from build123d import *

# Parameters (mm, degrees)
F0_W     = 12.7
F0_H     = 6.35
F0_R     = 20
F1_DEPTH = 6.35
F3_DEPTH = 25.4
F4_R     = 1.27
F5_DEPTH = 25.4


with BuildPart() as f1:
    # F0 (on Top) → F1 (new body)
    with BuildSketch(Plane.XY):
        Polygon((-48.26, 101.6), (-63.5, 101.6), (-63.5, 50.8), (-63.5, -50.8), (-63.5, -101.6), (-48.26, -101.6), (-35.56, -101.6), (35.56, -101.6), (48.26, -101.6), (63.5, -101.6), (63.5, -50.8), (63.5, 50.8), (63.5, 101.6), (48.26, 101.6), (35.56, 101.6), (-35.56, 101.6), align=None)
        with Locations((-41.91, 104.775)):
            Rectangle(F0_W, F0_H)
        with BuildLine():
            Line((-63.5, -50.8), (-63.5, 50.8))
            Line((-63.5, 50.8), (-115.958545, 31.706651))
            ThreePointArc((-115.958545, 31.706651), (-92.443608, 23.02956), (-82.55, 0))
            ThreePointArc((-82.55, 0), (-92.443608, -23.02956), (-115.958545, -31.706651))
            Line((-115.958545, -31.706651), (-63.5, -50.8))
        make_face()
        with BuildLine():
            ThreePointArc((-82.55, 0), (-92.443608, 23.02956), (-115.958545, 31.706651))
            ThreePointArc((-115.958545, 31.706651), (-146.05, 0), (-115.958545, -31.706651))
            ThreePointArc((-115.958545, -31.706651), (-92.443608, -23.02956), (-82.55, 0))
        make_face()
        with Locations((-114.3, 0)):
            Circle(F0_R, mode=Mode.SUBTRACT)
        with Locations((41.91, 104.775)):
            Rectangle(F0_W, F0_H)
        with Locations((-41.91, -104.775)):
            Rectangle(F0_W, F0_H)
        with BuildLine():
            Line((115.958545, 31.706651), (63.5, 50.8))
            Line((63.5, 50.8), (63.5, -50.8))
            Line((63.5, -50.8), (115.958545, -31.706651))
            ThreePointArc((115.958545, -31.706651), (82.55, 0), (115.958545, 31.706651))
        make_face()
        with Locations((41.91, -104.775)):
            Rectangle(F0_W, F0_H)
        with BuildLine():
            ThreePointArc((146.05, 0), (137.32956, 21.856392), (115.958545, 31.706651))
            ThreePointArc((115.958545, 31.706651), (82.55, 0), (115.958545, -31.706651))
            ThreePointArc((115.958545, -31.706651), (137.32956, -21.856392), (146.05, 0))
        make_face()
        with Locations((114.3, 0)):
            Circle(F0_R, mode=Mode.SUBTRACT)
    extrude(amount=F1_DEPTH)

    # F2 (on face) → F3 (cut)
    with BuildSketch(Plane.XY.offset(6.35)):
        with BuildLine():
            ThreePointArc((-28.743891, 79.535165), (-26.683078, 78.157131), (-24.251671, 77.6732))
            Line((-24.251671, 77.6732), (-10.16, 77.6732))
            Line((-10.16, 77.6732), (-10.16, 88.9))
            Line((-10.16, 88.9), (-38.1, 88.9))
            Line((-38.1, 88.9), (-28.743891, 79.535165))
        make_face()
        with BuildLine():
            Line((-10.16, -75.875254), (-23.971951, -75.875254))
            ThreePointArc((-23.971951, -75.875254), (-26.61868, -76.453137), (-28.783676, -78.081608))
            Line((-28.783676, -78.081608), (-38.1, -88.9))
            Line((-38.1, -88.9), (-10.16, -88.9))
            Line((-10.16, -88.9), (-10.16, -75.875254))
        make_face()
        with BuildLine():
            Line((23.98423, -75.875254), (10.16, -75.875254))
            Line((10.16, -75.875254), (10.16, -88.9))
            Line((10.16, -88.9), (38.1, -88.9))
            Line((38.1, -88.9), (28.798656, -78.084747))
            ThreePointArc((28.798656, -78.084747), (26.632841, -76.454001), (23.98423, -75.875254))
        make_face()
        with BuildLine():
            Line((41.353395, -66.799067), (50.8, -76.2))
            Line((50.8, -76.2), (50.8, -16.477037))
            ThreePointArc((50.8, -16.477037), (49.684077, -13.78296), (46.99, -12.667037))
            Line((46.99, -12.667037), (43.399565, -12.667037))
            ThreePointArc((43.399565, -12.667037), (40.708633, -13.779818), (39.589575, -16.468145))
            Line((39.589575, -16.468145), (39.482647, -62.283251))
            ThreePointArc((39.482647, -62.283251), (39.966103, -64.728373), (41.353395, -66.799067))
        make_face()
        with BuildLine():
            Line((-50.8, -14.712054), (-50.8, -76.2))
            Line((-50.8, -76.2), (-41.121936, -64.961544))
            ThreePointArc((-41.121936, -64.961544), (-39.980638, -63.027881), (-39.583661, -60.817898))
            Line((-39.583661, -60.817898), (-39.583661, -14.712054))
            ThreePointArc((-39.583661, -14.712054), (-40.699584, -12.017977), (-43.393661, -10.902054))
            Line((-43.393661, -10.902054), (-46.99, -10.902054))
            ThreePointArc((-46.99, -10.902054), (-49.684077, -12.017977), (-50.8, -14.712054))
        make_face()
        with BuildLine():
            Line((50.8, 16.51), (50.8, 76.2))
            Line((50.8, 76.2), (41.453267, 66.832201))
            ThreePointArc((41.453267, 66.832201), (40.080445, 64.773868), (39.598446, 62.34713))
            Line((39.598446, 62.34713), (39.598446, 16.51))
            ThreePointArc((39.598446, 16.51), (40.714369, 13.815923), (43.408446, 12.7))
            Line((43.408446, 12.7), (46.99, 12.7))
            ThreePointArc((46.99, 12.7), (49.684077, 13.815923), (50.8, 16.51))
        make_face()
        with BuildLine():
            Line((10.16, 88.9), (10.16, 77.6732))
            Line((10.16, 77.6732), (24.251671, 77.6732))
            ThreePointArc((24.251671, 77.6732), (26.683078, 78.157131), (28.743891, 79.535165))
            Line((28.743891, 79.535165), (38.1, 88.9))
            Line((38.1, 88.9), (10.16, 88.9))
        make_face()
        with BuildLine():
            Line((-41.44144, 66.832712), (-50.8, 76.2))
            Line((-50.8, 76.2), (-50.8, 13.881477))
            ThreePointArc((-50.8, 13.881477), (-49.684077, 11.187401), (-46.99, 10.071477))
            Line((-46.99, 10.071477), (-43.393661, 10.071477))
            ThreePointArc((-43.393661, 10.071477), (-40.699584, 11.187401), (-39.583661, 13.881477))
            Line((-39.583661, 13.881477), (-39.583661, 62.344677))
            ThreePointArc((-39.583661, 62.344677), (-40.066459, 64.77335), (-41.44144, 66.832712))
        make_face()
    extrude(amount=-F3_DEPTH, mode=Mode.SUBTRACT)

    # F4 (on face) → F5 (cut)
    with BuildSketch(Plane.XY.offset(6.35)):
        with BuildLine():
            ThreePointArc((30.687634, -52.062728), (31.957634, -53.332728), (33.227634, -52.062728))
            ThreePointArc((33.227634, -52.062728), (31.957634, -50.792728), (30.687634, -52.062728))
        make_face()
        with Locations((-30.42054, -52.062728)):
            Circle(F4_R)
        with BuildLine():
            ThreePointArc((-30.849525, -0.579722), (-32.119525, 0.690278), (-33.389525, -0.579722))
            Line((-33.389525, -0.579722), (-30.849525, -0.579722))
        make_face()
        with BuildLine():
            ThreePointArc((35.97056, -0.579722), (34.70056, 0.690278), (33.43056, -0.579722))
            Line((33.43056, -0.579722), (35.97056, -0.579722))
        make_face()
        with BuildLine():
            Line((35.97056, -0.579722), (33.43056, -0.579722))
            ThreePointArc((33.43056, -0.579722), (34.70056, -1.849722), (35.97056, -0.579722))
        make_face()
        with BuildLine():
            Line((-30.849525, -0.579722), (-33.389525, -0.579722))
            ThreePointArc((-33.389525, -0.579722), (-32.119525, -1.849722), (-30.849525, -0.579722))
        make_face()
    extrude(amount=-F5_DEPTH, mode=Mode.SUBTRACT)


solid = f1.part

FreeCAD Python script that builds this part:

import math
import FreeCAD as App
import Part
import Sketcher
Q = App.Units.Quantity

doc = App.newDocument("Part")
body = doc.addObject("PartDesign::Body", "Body")

# Sketch on XY plane
sketch1 = body.newObject("Sketcher::SketchObject", "Sketch")
sketch1.AttachmentSupport = (doc.getObject("XY_Plane"), [""])
sketch1.MapMode = "FlatFace"
sketch1.addGeometry([
    Part.LineSegment(App.Vector(-64, 102, 0), App.Vector(-64, 51, 0)),  # 0
    Part.LineSegment(App.Vector(-64, 51, 0), App.Vector(-116, 32, 0)),  # 1
    Part.ArcOfCircle(Part.Circle(App.Vector(-114, 0, 0), App.Vector(0, 0, 1), 32), math.radians(93), math.radians(267)),  # 2
    Part.LineSegment(App.Vector(-116, -32, 0), App.Vector(-64, -51, 0)),  # 3
    Part.LineSegment(App.Vector(-64, -51, 0), App.Vector(-64, -102, 0)),  # 4
    Part.LineSegment(App.Vector(-64, -102, 0), App.Vector(-48, -102, 0)),  # 5
    Part.LineSegment(App.Vector(-48, -102, 0), App.Vector(-48, -108, 0)),  # 6
    Part.LineSegment(App.Vector(-48, -108, 0), App.Vector(-36, -108, 0)),  # 7
    Part.LineSegment(App.Vector(-36, -108, 0), App.Vector(-36, -102, 0)),  # 8
    Part.LineSegment(App.Vector(-36, -102, 0), App.Vector(36, -102, 0)),  # 9
    Part.LineSegment(App.Vector(36, -102, 0), App.Vector(36, -108, 0)),  # 10
    Part.LineSegment(App.Vector(36, -108, 0), App.Vector(48, -108, 0)),  # 11
    Part.LineSegment(App.Vector(48, -108, 0), App.Vector(48, -102, 0)),  # 12
    Part.LineSegment(App.Vector(48, -102, 0), App.Vector(64, -102, 0)),  # 13
    Part.LineSegment(App.Vector(64, -102, 0), App.Vector(64, -51, 0)),  # 14
    Part.LineSegment(App.Vector(64, -51, 0), App.Vector(116, -32, 0)),  # 15
    Part.ArcOfCircle(Part.Circle(App.Vector(114, 0, 0), App.Vector(0, 0, 1), 32), math.radians(-87), math.radians(0)),  # 16
    Part.ArcOfCircle(Part.Circle(App.Vector(114, 0, 0), App.Vector(0, 0, 1), 32), math.radians(0), math.radians(87)),  # 17
    Part.LineSegment(App.Vector(116, 32, 0), App.Vector(64, 51, 0)),  # 18
    Part.LineSegment(App.Vector(64, 51, 0), App.Vector(64, 102, 0)),  # 19
    Part.LineSegment(App.Vector(64, 102, 0), App.Vector(48, 102, 0)),  # 20
    Part.LineSegment(App.Vector(48, 102, 0), App.Vector(48, 108, 0)),  # 21
    Part.LineSegment(App.Vector(48, 108, 0), App.Vector(36, 108, 0)),  # 22
    Part.LineSegment(App.Vector(36, 108, 0), App.Vector(36, 102, 0)),  # 23
    Part.LineSegment(App.Vector(36, 102, 0), App.Vector(-36, 102, 0)),  # 24
    Part.LineSegment(App.Vector(-36, 102, 0), App.Vector(-36, 108, 0)),  # 25
    Part.LineSegment(App.Vector(-36, 108, 0), App.Vector(-48, 108, 0)),  # 26
    Part.LineSegment(App.Vector(-48, 108, 0), App.Vector(-48, 102, 0)),  # 27
    Part.LineSegment(App.Vector(-48, 102, 0), App.Vector(-64, 102, 0)),  # 28
    Part.Circle(App.Vector(-114, 0, 0), App.Vector(0, 0, 1), 20),  # 29
    Part.Circle(App.Vector(114, 0, 0), App.Vector(0, 0, 1), 20),  # 30
], False)
sketch1.addConstraint([
    Sketcher.Constraint("Coincident", 0, 2, 1, 1),
    Sketcher.Constraint("Coincident", 1, 2, 2, 1),
    Sketcher.Constraint("Coincident", 2, 2, 3, 1),
    Sketcher.Constraint("Coincident", 3, 2, 4, 1),
    Sketcher.Constraint("Coincident", 4, 2, 5, 1),
    Sketcher.Constraint("Coincident", 5, 2, 6, 1),
    Sketcher.Constraint("Coincident", 6, 2, 7, 1),
    Sketcher.Constraint("Coincident", 7, 2, 8, 1),
    Sketcher.Constraint("Coincident", 8, 2, 9, 1),
    Sketcher.Constraint("Coincident", 9, 2, 10, 1),
    Sketcher.Constraint("Coincident", 10, 2, 11, 1),
    Sketcher.Constraint("Coincident", 11, 2, 12, 1),
    Sketcher.Constraint("Coincident", 12, 2, 13, 1),
    Sketcher.Constraint("Coincident", 13, 2, 14, 1),
    Sketcher.Constraint("Coincident", 14, 2, 15, 1),
    Sketcher.Constraint("Coincident", 15, 2, 16, 1),
    Sketcher.Constraint("Tangent", 16, 2, 17, 1),
    Sketcher.Constraint("Coincident", 17, 2, 18, 1),
    Sketcher.Constraint("Coincident", 18, 2, 19, 1),
    Sketcher.Constraint("Coincident", 19, 2, 20, 1),
    Sketcher.Constraint("Coincident", 20, 2, 21, 1),
    Sketcher.Constraint("Coincident", 21, 2, 22, 1),
    Sketcher.Constraint("Coincident", 22, 2, 23, 1),
    Sketcher.Constraint("Coincident", 23, 2, 24, 1),
    Sketcher.Constraint("Coincident", 24, 2, 25, 1),
    Sketcher.Constraint("Coincident", 25, 2, 26, 1),
    Sketcher.Constraint("Coincident", 26, 2, 27, 1),
    Sketcher.Constraint("Coincident", 27, 2, 28, 1),
    Sketcher.Constraint("Coincident", 28, 2, 0, 1),
    Sketcher.Constraint("Vertical", 0),
    Sketcher.Constraint("Vertical", 4),
    Sketcher.Constraint("Horizontal", 5),
    Sketcher.Constraint("Vertical", 6),
    Sketcher.Constraint("Horizontal", 7),
    Sketcher.Constraint("Vertical", 8),
    Sketcher.Constraint("Horizontal", 9),
    Sketcher.Constraint("Vertical", 10),
    Sketcher.Constraint("Horizontal", 11),
    Sketcher.Constraint("Vertical", 12),
    Sketcher.Constraint("Horizontal", 13),
    Sketcher.Constraint("Vertical", 14),
    Sketcher.Constraint("Vertical", 19),
    Sketcher.Constraint("Horizontal", 20),
    Sketcher.Constraint("Vertical", 21),
    Sketcher.Constraint("Horizontal", 22),
    Sketcher.Constraint("Vertical", 23),
    Sketcher.Constraint("Horizontal", 24),
    Sketcher.Constraint("Vertical", 25),
    Sketcher.Constraint("Horizontal", 26),
    Sketcher.Constraint("Vertical", 27),
    Sketcher.Constraint("Horizontal", 28),
    Sketcher.Constraint("Coincident", 29, 3, 2, 3),
    Sketcher.Constraint("Coincident", 30, 3, 16, 3),
    Sketcher.Constraint("Equal", 2, 16),
    Sketcher.Constraint("Equal", 16, 17),
    Sketcher.Constraint("Equal", 29, 30),
    Sketcher.Constraint("Symmetric", 2, 3, 16, 3, -1, 1),
    Sketcher.Constraint("Symmetric", 0, 2, 14, 2, -1, 1),
    Sketcher.Constraint("Symmetric", 3, 2, 18, 2, -1, 1),
    Sketcher.Constraint("Symmetric", 5, 2, 20, 2, -1, 1),
    Sketcher.Constraint("Symmetric", 7, 2, 22, 2, -1, 1),
    Sketcher.Constraint("Symmetric", 9, 2, 24, 2, -1, 1),
    Sketcher.Constraint("Symmetric", 11, 2, 26, 2, -1, 1),
    Sketcher.Constraint("Symmetric", 7, 2, 10, 2, -2),
    Sketcher.Constraint("Symmetric", 5, 2, 12, 2, -2),
    Sketcher.Constraint("Symmetric", 3, 2, 14, 2, -2),
    Sketcher.Constraint("Symmetric", 2, 2, 15, 2, -2),
    Sketcher.Constraint("PointOnObject", 16, 2, -1),
    Sketcher.Constraint("Parallel", 1, 15),
    Sketcher.Constraint("Parallel", 3, 18),
    Sketcher.Constraint("Horizontal", 5, 2, 8, 2),
    Sketcher.Constraint("Horizontal", 24, 2, 27, 2),
    Sketcher.Constraint("DistanceY", 0, 2, 0, 1, Q("2 in")),
    Sketcher.Constraint("Radius", 2, Q("1.25 in")),
    Sketcher.Constraint("DistanceX", 5, 1, 5, 2, Q("0.6 in")),
    Sketcher.Constraint("DistanceX", 7, 1, 7, 2, Q("0.5 in")),
    Sketcher.Constraint("DistanceX", 9, 1, 9, 2, Q("2.8 in")),
    Sketcher.Constraint("DistanceY", -1, 1, 0, 2, Q("2 in")),
    Sketcher.Constraint("Angle", 1, Q("-160 deg")),
    Sketcher.Constraint("DistanceX", 2, 3, 16, 3, Q("9 in")),
    Sketcher.Constraint("DistanceY", 6, 2, 6, 1, Q("0.25 in")),
    Sketcher.Constraint("Diameter", 29, Q("40 mm")),
])
pad1 = body.newObject("PartDesign::Pad", "Pad")
pad1.Profile = sketch1
pad1.Length = Q("0.25 in")

# Sketch on XY plane
sketch2 = body.newObject("Sketcher::SketchObject", "Sketch001")
sketch2.AttachmentSupport = (doc.getObject("XY_Plane"), [""])
sketch2.MapMode = "FlatFace"
sketch2.AttachmentOffset = App.Placement(App.Vector(0, 0, 0.25 * 25.4), App.Rotation())
sketch2.addGeometry([
    Part.ArcOfCircle(Part.Circle(App.Vector(-24.3, 84, 0), App.Vector(0, 0, 1), 6.3), math.radians(-135), math.radians(-90)),  # 0
    Part.LineSegment(App.Vector(-24.3, 77.7, 0), App.Vector(-10.2, 77.7, 0)),  # 1
    Part.LineSegment(App.Vector(-10.2, 77.7, 0), App.Vector(-10.2, 88.9, 0)),  # 2
    Part.LineSegment(App.Vector(-10.2, 88.9, 0), App.Vector(-38.1, 88.9, 0)),  # 3
    Part.LineSegment(App.Vector(-38.1, 88.9, 0), App.Vector(-28.7, 79.5, 0)),  # 4
    Part.LineSegment(App.Vector(-10.2, -75.9, 0), App.Vector(-24, -75.9, 0)),  # 5
    Part.ArcOfCircle(Part.Circle(App.Vector(-24, -82.2, 0), App.Vector(0, 0, 1), 6.3), math.radians(90), math.radians(139)),  # 6
    Part.LineSegment(App.Vector(-28.8, -78.1, 0), App.Vector(-38.1, -88.9, 0)),  # 7
    Part.LineSegment(App.Vector(-38.1, -88.9, 0), App.Vector(-10.2, -88.9, 0)),  # 8
    Part.LineSegment(App.Vector(-10.2, -88.9, 0), App.Vector(-10.2, -75.9, 0)),  # 9
    Part.LineSegment(App.Vector(24, -75.9, 0), App.Vector(10.2, -75.9, 0)),  # 10
    Part.LineSegment(App.Vector(10.2, -75.9, 0), App.Vector(10.2, -88.9, 0)),  # 11
    Part.LineSegment(App.Vector(10.2, -88.9, 0), App.Vector(38.1, -88.9, 0)),  # 12
    Part.LineSegment(App.Vector(38.1, -88.9, 0), App.Vector(28.8, -78.1, 0)),  # 13
    Part.ArcOfCircle(Part.Circle(App.Vector(24, -82.2, 0), App.Vector(0, 0, 1), 6.3), math.radians(41), math.radians(90)),  # 14
    Part.LineSegment(App.Vector(41.4, -66.8, 0), App.Vector(50.8, -76.2, 0)),  # 15
    Part.LineSegment(App.Vector(50.8, -76.2, 0), App.Vector(50.8, -16.5, 0)),  # 16
    Part.ArcOfCircle(Part.Circle(App.Vector(47, -16.5, 0), App.Vector(0, 0, 1), 3.8), math.radians(0), math.radians(90)),  # 17
    Part.LineSegment(App.Vector(47, -12.7, 0), App.Vector(43.4, -12.7, 0)),  # 18
    Part.ArcOfCircle(Part.Circle(App.Vector(43.4, -16.5, 0), App.Vector(0, 0, 1), 3.8), math.radians(90), math.radians(180)),  # 19
    Part.LineSegment(App.Vector(39.6, -16.5, 0), App.Vector(39.5, -62.3, 0)),  # 20
    Part.ArcOfCircle(Part.Circle(App.Vector(45.8, -62.3, 0), App.Vector(0, 0, 1), 6.4), math.radians(180), math.radians(225)),  # 21
    Part.LineSegment(App.Vector(-50.8, -14.7, 0), App.Vector(-50.8, -76.2, 0)),  # 22
    Part.LineSegment(App.Vector(-50.8, -76.2, 0), App.Vector(-41.1, -65, 0)),  # 23
    Part.ArcOfCircle(Part.Circle(App.Vector(-45.9, -60.8, 0), App.Vector(0, 0, 1), 6.3), math.radians(-41), math.radians(0)),  # 24
    Part.LineSegment(App.Vector(-39.6, -60.8, 0), App.Vector(-39.6, -14.7, 0)),  # 25
    Part.ArcOfCircle(Part.Circle(App.Vector(-43.4, -14.7, 0), App.Vector(0, 0, 1), 3.8), math.radians(0), math.radians(90)),  # 26
    Part.LineSegment(App.Vector(-43.4, -10.9, 0), App.Vector(-47, -10.9, 0)),  # 27
    Part.ArcOfCircle(Part.Circle(App.Vector(-47, -14.7, 0), App.Vector(0, 0, 1), 3.8), math.radians(90), math.radians(180)),  # 28
    Part.LineSegment(App.Vector(50.8, 16.5, 0), App.Vector(50.8, 76.2, 0)),  # 29
    Part.LineSegment(App.Vector(50.8, 76.2, 0), App.Vector(41.5, 66.8, 0)),  # 30
    Part.ArcOfCircle(Part.Circle(App.Vector(45.9, 62.3, 0), App.Vector(0, 0, 1), 6.4), math.radians(135), math.radians(180)),  # 31
    Part.LineSegment(App.Vector(39.6, 62.3, 0), App.Vector(39.6, 16.5, 0)),  # 32
    Part.ArcOfCircle(Part.Circle(App.Vector(43.4, 16.5, 0), App.Vector(0, 0, 1), 3.8), math.radians(180), math.radians(270)),  # 33
    Part.LineSegment(App.Vector(43.4, 12.7, 0), App.Vector(47, 12.7, 0)),  # 34
    Part.ArcOfCircle(Part.Circle(App.Vector(47, 16.5, 0), App.Vector(0, 0, 1), 3.8), math.radians(-90), math.radians(0)),  # 35
    Part.LineSegment(App.Vector(10.2, 88.9, 0), App.Vector(10.2, 77.7, 0)),  # 36
    Part.LineSegment(App.Vector(10.2, 77.7, 0), App.Vector(24.3, 77.7, 0)),  # 37
    Part.ArcOfCircle(Part.Circle(App.Vector(24.3, 84, 0), App.Vector(0, 0, 1), 6.3), math.radians(-90), math.radians(-45)),  # 38
    Part.LineSegment(App.Vector(28.7, 79.5, 0), App.Vector(38.1, 88.9, 0)),  # 39
    Part.LineSegment(App.Vector(38.1, 88.9, 0), App.Vector(10.2, 88.9, 0)),  # 40
    Part.LineSegment(App.Vector(-41.4, 66.8, 0), App.Vector(-50.8, 76.2, 0)),  # 41
    Part.LineSegment(App.Vector(-50.8, 76.2, 0), App.Vector(-50.8, 13.9, 0)),  # 42
    Part.ArcOfCircle(Part.Circle(App.Vector(-47, 13.9, 0), App.Vector(0, 0, 1), 3.8), math.radians(-180), math.radians(-90)),  # 43
    Part.LineSegment(App.Vector(-47, 10.1, 0), App.Vector(-43.4, 10.1, 0)),  # 44
    Part.ArcOfCircle(Part.Circle(App.Vector(-43.4, 13.9, 0), App.Vector(0, 0, 1), 3.8), math.radians(-90), math.radians(0)),  # 45
    Part.LineSegment(App.Vector(-39.6, 13.9, 0), App.Vector(-39.6, 62.3, 0)),  # 46
    Part.ArcOfCircle(Part.Circle(App.Vector(-45.9, 62.3, 0), App.Vector(0, 0, 1), 6.3), math.radians(0), math.radians(45)),  # 47
], False)
sketch2.addConstraint([
    Sketcher.Constraint("Tangent", 0, 2, 1, 1),
    Sketcher.Constraint("Coincident", 1, 2, 2, 1),
    Sketcher.Constraint("Coincident", 2, 2, 3, 1),
    Sketcher.Constraint("Coincident", 3, 2, 4, 1),
    Sketcher.Constraint("Tangent", 4, 2, 0, 1),
    Sketcher.Constraint("Tangent", 5, 2, 6, 1),
    Sketcher.Constraint("Tangent", 6, 2, 7, 1),
    Sketcher.Constraint("Coincident", 7, 2, 8, 1),
    Sketcher.Constraint("Coincident", 8, 2, 9, 1),
    Sketcher.Constraint("Coincident", 9, 2, 5, 1),
    Sketcher.Constraint("Coincident", 10, 2, 11, 1),
    Sketcher.Constraint("Coincident", 11, 2, 12, 1),
    Sketcher.Constraint("Coincident", 12, 2, 13, 1),
    Sketcher.Constraint("Tangent", 13, 2, 14, 1),
    Sketcher.Constraint("Tangent", 14, 2, 10, 1),
    Sketcher.Constraint("Coincident", 15, 2, 16, 1),
    Sketcher.Constraint("Tangent", 16, 2, 17, 1),
    Sketcher.Constraint("Tangent", 17, 2, 18, 1),
    Sketcher.Constraint("Tangent", 18, 2, 19, 1),
    Sketcher.Constraint("Tangent", 19, 2, 20, 1),
    Sketcher.Constraint("Tangent", 20, 2, 21, 1),
    Sketcher.Constraint("Tangent", 21, 2, 15, 1),
    Sketcher.Constraint("Coincident", 22, 2, 23, 1),
    Sketcher.Constraint("Tangent", 23, 2, 24, 1),
    Sketcher.Constraint("Tangent", 24, 2, 25, 1),
    Sketcher.Constraint("Tangent", 25, 2, 26, 1),
    Sketcher.Constraint("Tangent", 26, 2, 27, 1),
    Sketcher.Constraint("Tangent", 27, 2, 28, 1),
    Sketcher.Constraint("Tangent", 28, 2, 22, 1),
    Sketcher.Constraint("Coincident", 29, 2, 30, 1),
    Sketcher.Constraint("Tangent", 30, 2, 31, 1),
    Sketcher.Constraint("Tangent", 31, 2, 32, 1),
    Sketcher.Constraint("Tangent", 32, 2, 33, 1),
    Sketcher.Constraint("Tangent", 33, 2, 34, 1),
    Sketcher.Constraint("Tangent", 34, 2, 35, 1),
    Sketcher.Constraint("Tangent", 35, 2, 29, 1),
    Sketcher.Constraint("Coincident", 36, 2, 37, 1),
    Sketcher.Constraint("Tangent", 37, 2, 38, 1),
    Sketcher.Constraint("Tangent", 38, 2, 39, 1),
    Sketcher.Constraint("Coincident", 39, 2, 40, 1),
    Sketcher.Constraint("Coincident", 40, 2, 36, 1),
    Sketcher.Constraint("Coincident", 41, 2, 42, 1),
    Sketcher.Constraint("Tangent", 42, 2, 43, 1),
    Sketcher.Constraint("Tangent", 43, 2, 44, 1),
    Sketcher.Constraint("Tangent", 44, 2, 45, 1),
    Sketcher.Constraint("Tangent", 45, 2, 46, 1),
    Sketcher.Constraint("Tangent", 46, 2, 47, 1),
    Sketcher.Constraint("Tangent", 47, 2, 41, 1),
    Sketcher.Constraint("Horizontal", 1),
    Sketcher.Constraint("Vertical", 2),
    Sketcher.Constraint("Horizontal", 3),
    Sketcher.Constraint("Horizontal", 5),
    Sketcher.Constraint("Horizontal", 8),
    Sketcher.Constraint("Vertical", 9),
    Sketcher.Constraint("Horizontal", 10),
    Sketcher.Constraint("Vertical", 11),
    Sketcher.Constraint("Horizontal", 12),
    Sketcher.Constraint("Vertical", 16),
    Sketcher.Constraint("Horizontal", 18),
    Sketcher.Constraint("Vertical", 22),
    Sketcher.Constraint("Vertical", 25),
    Sketcher.Constraint("Horizontal", 27),
    Sketcher.Constraint("Vertical", 29),
    Sketcher.Constraint("Vertical", 32),
    Sketcher.Constraint("Horizontal", 34),
    Sketcher.Constraint("Vertical", 36),
    Sketcher.Constraint("Horizontal", 37),
    Sketcher.Constraint("Horizontal", 40),
    Sketcher.Constraint("Vertical", 42),
    Sketcher.Constraint("Horizontal", 44),
    Sketcher.Constraint("Vertical", 46),
    Sketcher.Constraint("Equal", 0, 6),
    Sketcher.Constraint("Equal", 17, 19),
    Sketcher.Constraint("Equal", 19, 26),
    Sketcher.Constraint("Equal", 26, 28),
    Sketcher.Constraint("Equal", 28, 33),
    Sketcher.Constraint("Equal", 33, 35),
    Sketcher.Constraint("Equal", 6, 38),
    Sketcher.Constraint("Equal", 35, 43),
    Sketcher.Constraint("Equal", 43, 45),
    Sketcher.Constraint("Equal", 38, 47),
    Sketcher.Constraint("Symmetric", 2, 2, 11, 2, -1, 1),
    Sketcher.Constraint("Symmetric", 22, 2, 29, 2, -1, 1),
    Sketcher.Constraint("Symmetric", 7, 2, 39, 2, -1, 1),
    Sketcher.Constraint("Symmetric", 15, 2, 41, 2, -1, 1),
    Sketcher.Constraint("Symmetric", 0, 3, 38, 3, -2),
    Sketcher.Constraint("Symmetric", 9, 2, 10, 2, -2),
    Sketcher.Constraint("Symmetric", 7, 2, 12, 2, -2),
    Sketcher.Constraint("Symmetric", 15, 2, 22, 2, -2),
    Sketcher.Constraint("Parallel", 7, 23),
    Sketcher.Constraint("Parallel", 4, 41),
    Sketcher.Constraint("Horizontal", 4, 2, 38, 2),
    Sketcher.Constraint("Vertical", 26, 3, 45, 3),
    Sketcher.Constraint("Vertical", 24, 3, 47, 3),
    Sketcher.Constraint("Vertical", 11, 2, 36, 2),
    Sketcher.Constraint("Radius", 14, Q("0.2499999 in")),
    Sketcher.Constraint("Radius", 17, Q("0.15 in")),
    Sketcher.Constraint("Radius", 21, Q("0.25 in")),
    Sketcher.Constraint("Radius", 31, Q("0.2500002 in")),
    Sketcher.Constraint("DistanceX", 3, 2, 3, 1, Q("1.1 in")),
    Sketcher.Constraint("DistanceX", -1, 1, 15, 2, Q("2 in")),
    Sketcher.Constraint("DistanceY", 15, 2, -1, 1, Q("3 in")),
    Sketcher.Constraint("DistanceY", 29, 1, 29, 2, Q("2.35 in")),
    Sketcher.Constraint("DistanceX", 1, 2, -1, 1, Q("0.4 in")),
    Sketcher.Constraint("DistanceY", -1, 1, 2, 2, Q("3.5 in")),
    Sketcher.Constraint("DistanceY", 2, 1, 2, 2, Q("0.442 in")),
    Sketcher.Constraint("DistanceY", 46, 1, 46, 2, Q("1.908 in")),
    Sketcher.Constraint("Radius", 24, Q("6.349991 mm")),
    Sketcher.Constraint("DistanceX", 1, 1, 1, 2, Q("14.091671 mm")),
    Sketcher.Constraint("DistanceX", 5, 2, 5, 1, Q("13.811951 mm")),
    Sketcher.Constraint("DistanceX", 10, 2, 10, 1, Q("13.82423 mm")),
    Sketcher.Constraint("DistanceX", 27, 2, 27, 1, Q("3.596339 mm")),
    Sketcher.Constraint("DistanceY", 32, 2, 32, 1, Q("45.83713 mm")),
    Sketcher.Constraint("DistanceY", 24, 3, -1, 1, Q("60.817901 mm")),
    Sketcher.Constraint("DistanceY", -1, 1, 30, 2, Q("66.832201 mm")),
    Sketcher.Constraint("Distance", 15, Q("13.327261 mm")),
    Sketcher.Constraint("Distance", 20, Q("45.815231 mm")),
    Sketcher.Constraint("DistanceX", 18, 2, 18, 1, Q("3.590435 mm")),
    Sketcher.Constraint("DistanceY", 16, 1, 16, 2, Q("59.722963 mm")),
    Sketcher.Constraint("DistanceY", 22, 2, 22, 1, Q("61.487946 mm")),
])
pocket1 = body.newObject("PartDesign::Pocket", "Pocket")
pocket1.Profile = sketch2
pocket1.Length = Q("1 in")

# Sketch on XY plane
sketch3 = body.newObject("Sketcher::SketchObject", "Sketch002")
sketch3.AttachmentSupport = (doc.getObject("XY_Plane"), [""])
sketch3.MapMode = "FlatFace"
sketch3.AttachmentOffset = App.Placement(App.Vector(0, 0, 0.25 * 25.4), App.Rotation())
sketch3.addGeometry([
    Part.Circle(App.Vector(32, -52.1, 0), App.Vector(0, 0, 1), 1.3),
    Part.Circle(App.Vector(-30.4, -52.1, 0), App.Vector(0, 0, 1), 1.3),
    Part.Circle(App.Vector(-32.1, -0.6, 0), App.Vector(0, 0, 1), 1.3),
    Part.Circle(App.Vector(34.7, -0.6, 0), App.Vector(0, 0, 1), 1.3),
], False)
sketch3.addConstraint([
    Sketcher.Constraint("Equal", 0, 1),
    Sketcher.Constraint("Equal", 1, 2),
    Sketcher.Constraint("Equal", 2, 3),
    Sketcher.Constraint("Horizontal", 0, 3, 1, 3),
    Sketcher.Constraint("Horizontal", 2, 3, 3, 3),
    Sketcher.Constraint("Diameter", 0, Q("0.1 in")),
    Sketcher.Constraint("DistanceX", 1, 3, 3, 3, Q("65.1211 mm")),
    Sketcher.Constraint("DistanceX", 1, 3, -1, 1, Q("30.42054 mm")),
    Sketcher.Constraint("DistanceY", 2, 3, -1, 1, Q("0.579722 mm")),
    Sketcher.Constraint("DistanceX", 2, 3, 0, 3, Q("64.077159 mm")),
    Sketcher.Constraint("DistanceX", -1, 1, 0, 3, Q("31.957634 mm")),
    Sketcher.Constraint("DistanceY", 0, 3, -1, 1, Q("52.062728 mm")),
])
pocket2 = body.newObject("PartDesign::Pocket", "Pocket001")
pocket2.Profile = sketch3
pocket2.Length = Q("1 in")

doc.recompute()
